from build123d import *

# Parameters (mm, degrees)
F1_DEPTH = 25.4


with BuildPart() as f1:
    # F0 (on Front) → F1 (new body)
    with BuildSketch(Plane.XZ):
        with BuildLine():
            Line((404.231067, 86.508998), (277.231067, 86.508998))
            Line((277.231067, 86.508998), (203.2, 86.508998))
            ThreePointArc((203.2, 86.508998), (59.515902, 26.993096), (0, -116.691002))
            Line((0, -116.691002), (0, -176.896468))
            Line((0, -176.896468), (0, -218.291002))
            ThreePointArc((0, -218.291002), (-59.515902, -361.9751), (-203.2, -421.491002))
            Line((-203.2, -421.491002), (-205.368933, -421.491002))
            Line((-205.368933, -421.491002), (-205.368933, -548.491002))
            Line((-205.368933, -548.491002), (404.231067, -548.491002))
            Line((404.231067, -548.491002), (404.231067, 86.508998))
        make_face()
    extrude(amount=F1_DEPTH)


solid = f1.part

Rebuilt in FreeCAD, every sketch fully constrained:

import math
import FreeCAD as App
import Part
import Sketcher

V = App.Vector
Q = App.Units.Quantity

doc = App.newDocument("Part")
body = doc.addObject("PartDesign::Body", "Body")

# Sketch on XZ plane
sketch1 = body.newObject("Sketcher::SketchObject", "Sketch")
sketch1.AttachmentSupport = (doc.getObject("XZ_Plane"), [""])
sketch1.MapMode = "FlatFace"
sketch1.addGeometry([
    Part.LineSegment(V(404.2, 86.5, 0), V(203.2, 86.5, 0)),  # 0
    Part.ArcOfCircle(Part.Circle(V(203.2, -116.7, 0), V(0, 0, 1), 203.2), math.radians(90), math.radians(180)),  # 1
    Part.LineSegment(V(0, -116.7, 0), V(0, -218.3, 0)),  # 2
    Part.ArcOfCircle(Part.Circle(V(-203.2, -218.3, 0), V(0, 0, 1), 203.2), math.radians(-90), math.radians(0)),  # 3
    Part.LineSegment(V(-203.2, -421.5, 0), V(-205.4, -421.5, 0)),  # 4
    Part.LineSegment(V(-205.4, -421.5, 0), V(-205.4, -548.5, 0)),  # 5
    Part.LineSegment(V(-205.4, -548.5, 0), V(404.2, -548.5, 0)),  # 6
    Part.LineSegment(V(404.2, -548.5, 0), V(404.2, 86.5, 0)),  # 7
], False)
sketch1.addConstraint([
    Sketcher.Constraint("Tangent", 0, 2, 1, 1),
    Sketcher.Constraint("Tangent", 1, 2, 2, 1),
    Sketcher.Constraint("Tangent", 2, 2, 3, 2),
    Sketcher.Constraint("Tangent", 3, 1, 4, 1),
    Sketcher.Constraint("Coincident", 4, 2, 5, 1),
    Sketcher.Constraint("Coincident", 5, 2, 6, 1),
    Sketcher.Constraint("Coincident", 6, 2, 7, 1),
    Sketcher.Constraint("Coincident", 7, 2, 0, 1),
    Sketcher.Constraint("Horizontal", 0),
    Sketcher.Constraint("Vertical", 2),
    Sketcher.Constraint("Horizontal", 4),
    Sketcher.Constraint("Vertical", 5),
    Sketcher.Constraint("Horizontal", 6),
    Sketcher.Constraint("Vertical", 7),
    Sketcher.Constraint("Equal", 1, 3),
    Sketcher.Constraint("PointOnObject", 1, 2, -2),
    Sketcher.Constraint("Radius", 1, Q("8 in")),
    Sketcher.Constraint("DistanceX", 6, 1, 6, 2, Q("24 in")),
    Sketcher.Constraint("DistanceY", 2, 2, 2, 1, Q("4 in")),
    Sketcher.Constraint("DistanceY", 5, 2, 5, 1, Q("5 in")),
    Sketcher.Constraint("DistanceY", 1, 3, -1, 1, Q("116.691002 mm")),
    Sketcher.Constraint("DistanceX", 0, 2, 0, 1, Q("201.031067 mm")),
])
pad1 = body.newObject("PartDesign::Pad", "Pad")
pad1.Profile = sketch1
pad1.Length = Q("1 in")

doc.recompute()
